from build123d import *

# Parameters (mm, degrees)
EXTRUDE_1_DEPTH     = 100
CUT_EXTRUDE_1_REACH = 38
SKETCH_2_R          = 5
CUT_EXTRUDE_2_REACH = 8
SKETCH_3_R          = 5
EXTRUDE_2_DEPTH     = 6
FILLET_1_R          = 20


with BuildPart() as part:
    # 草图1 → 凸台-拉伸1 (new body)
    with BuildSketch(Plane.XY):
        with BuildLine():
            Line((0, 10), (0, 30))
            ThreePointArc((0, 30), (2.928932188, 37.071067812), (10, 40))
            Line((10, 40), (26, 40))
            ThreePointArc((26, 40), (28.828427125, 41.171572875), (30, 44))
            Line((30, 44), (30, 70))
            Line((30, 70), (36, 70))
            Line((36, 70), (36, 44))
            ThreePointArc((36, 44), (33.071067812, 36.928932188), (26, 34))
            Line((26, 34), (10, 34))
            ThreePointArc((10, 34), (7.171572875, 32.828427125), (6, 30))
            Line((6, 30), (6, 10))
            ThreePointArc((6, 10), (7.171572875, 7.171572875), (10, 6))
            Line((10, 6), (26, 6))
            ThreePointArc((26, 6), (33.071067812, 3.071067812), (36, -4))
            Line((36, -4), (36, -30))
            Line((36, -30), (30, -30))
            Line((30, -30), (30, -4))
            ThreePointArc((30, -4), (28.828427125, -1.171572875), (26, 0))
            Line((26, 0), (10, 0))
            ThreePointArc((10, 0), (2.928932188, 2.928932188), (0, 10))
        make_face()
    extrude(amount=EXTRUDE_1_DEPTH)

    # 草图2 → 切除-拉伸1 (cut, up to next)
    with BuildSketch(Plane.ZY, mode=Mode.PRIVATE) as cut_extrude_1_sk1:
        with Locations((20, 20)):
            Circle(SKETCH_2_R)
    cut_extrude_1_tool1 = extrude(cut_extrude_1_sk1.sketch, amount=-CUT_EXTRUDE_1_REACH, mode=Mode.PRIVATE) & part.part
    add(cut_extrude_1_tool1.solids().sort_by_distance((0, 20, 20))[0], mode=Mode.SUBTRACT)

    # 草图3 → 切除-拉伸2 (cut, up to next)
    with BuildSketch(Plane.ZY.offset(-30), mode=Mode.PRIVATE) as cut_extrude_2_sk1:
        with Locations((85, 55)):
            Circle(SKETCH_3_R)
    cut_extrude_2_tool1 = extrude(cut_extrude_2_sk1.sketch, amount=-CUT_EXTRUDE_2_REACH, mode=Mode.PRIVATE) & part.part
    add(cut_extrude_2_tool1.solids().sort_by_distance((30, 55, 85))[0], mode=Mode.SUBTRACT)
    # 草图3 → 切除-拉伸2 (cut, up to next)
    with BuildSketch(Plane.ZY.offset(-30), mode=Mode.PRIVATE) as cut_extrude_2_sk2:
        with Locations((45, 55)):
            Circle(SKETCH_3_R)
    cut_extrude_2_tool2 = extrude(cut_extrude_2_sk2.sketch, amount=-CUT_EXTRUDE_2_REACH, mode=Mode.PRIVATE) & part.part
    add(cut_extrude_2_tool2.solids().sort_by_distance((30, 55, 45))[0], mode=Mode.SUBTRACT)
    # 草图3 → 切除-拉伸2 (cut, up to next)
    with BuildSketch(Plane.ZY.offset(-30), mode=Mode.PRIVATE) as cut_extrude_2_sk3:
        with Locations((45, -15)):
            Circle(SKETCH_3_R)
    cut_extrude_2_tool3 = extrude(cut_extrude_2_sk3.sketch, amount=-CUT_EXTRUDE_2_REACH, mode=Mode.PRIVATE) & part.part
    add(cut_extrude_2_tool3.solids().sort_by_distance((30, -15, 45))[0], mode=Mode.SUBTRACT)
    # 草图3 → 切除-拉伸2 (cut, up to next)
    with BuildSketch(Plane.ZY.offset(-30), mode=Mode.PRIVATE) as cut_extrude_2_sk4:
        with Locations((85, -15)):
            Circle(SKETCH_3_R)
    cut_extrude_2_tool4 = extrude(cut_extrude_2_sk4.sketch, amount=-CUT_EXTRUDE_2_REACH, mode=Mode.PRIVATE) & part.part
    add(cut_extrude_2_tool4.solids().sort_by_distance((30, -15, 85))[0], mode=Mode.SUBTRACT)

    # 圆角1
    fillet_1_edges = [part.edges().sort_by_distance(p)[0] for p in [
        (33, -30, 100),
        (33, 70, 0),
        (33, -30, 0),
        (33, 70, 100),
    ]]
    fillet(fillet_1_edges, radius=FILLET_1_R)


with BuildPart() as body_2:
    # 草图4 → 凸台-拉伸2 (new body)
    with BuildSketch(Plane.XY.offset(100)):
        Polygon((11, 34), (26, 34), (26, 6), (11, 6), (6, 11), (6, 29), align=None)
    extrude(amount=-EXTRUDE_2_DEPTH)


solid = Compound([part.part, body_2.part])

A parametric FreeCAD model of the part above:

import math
import FreeCAD as App
import Part
import Sketcher
from FreeCAD import Vector
Q = App.Units.Quantity


def edges_at(feature, points):
    """Names of the edges that pass closest to the given points."""
    edges = feature.Shape.Edges
    near = lambda p: min(range(len(edges)), key=lambda i: edges[i].distToShape(Part.Vertex(*p))[0])
    return sorted({f"Edge{near(p) + 1}" for p in points})


def add_polygon(sketch, points):
    """Adds a closed chain of lines whose ends are joined by coincident constraints."""
    first, n = sketch.GeometryCount, len(points)
    for a, b in zip(points, points[1:] + points[:1]):
        sketch.addGeometry(Part.LineSegment(App.Vector(*a, 0), App.Vector(*b, 0)), False)
    for i in range(n):
        sketch.addConstraint(Sketcher.Constraint("Coincident", first + i, 2, first + (i + 1) % n, 1))

doc = App.newDocument("Part")
body = doc.addObject("PartDesign::Body", "Body")

# Sketch on XY plane
sketch1 = body.newObject("Sketcher::SketchObject", "Sketch")
sketch1.AttachmentSupport = (doc.getObject("XY_Plane"), [""])
sketch1.MapMode = "FlatFace"
sketch1.addGeometry([
    Part.LineSegment(Vector(0, 30, 0), Vector(0, 10, 0)),  # 0
    Part.ArcOfCircle(Part.Circle(Vector(10, 10, 0), Vector(0, 0, 1), 10), math.radians(180), math.radians(270)),  # 1
    Part.LineSegment(Vector(10, 0, 0), Vector(26, 0, 0)),  # 2
    Part.ArcOfCircle(Part.Circle(Vector(26, -4, 0), Vector(0, 0, 1), 4), math.radians(0), math.radians(90)),  # 3
    Part.LineSegment(Vector(30, -4, 0), Vector(30, -30, 0)),  # 4
    Part.LineSegment(Vector(30, -30, 0), Vector(36, -30, 0)),  # 5
    Part.LineSegment(Vector(36, -30, 0), Vector(36, -4, 0)),  # 6
    Part.ArcOfCircle(Part.Circle(Vector(26, -4, 0), Vector(0, 0, 1), 10), math.radians(0), math.radians(90)),  # 7
    Part.LineSegment(Vector(26, 6, 0), Vector(10, 6, 0)),  # 8
    Part.ArcOfCircle(Part.Circle(Vector(10, 10, 0), Vector(0, 0, 1), 4), math.radians(180), math.radians(270)),  # 9
    Part.LineSegment(Vector(6, 10, 0), Vector(6, 30, 0)),  # 10
    Part.ArcOfCircle(Part.Circle(Vector(10, 30, 0), Vector(0, 0, 1), 4), math.radians(90), math.radians(180)),  # 11
    Part.LineSegment(Vector(10, 34, 0), Vector(26, 34, 0)),  # 12
    Part.ArcOfCircle(Part.Circle(Vector(26, 44, 0), Vector(0, 0, 1), 10), math.radians(-90), math.radians(0)),  # 13
    Part.LineSegment(Vector(36, 44, 0), Vector(36, 70, 0)),  # 14
    Part.LineSegment(Vector(36, 70, 0), Vector(30, 70, 0)),  # 15
    Part.LineSegment(Vector(30, 70, 0), Vector(30, 44, 0)),  # 16
    Part.ArcOfCircle(Part.Circle(Vector(26, 44, 0), Vector(0, 0, 1), 4), math.radians(-90), math.radians(0)),  # 17
    Part.LineSegment(Vector(26, 40, 0), Vector(10, 40, 0)),  # 18
    Part.ArcOfCircle(Part.Circle(Vector(10, 30, 0), Vector(0, 0, 1), 10), math.radians(90), math.radians(180)),  # 19
], False)
sketch1.addConstraint([
    Sketcher.Constraint("Tangent", 0, 2, 1, 1),
    Sketcher.Constraint("Tangent", 1, 2, 2, 1),
    Sketcher.Constraint("Tangent", 2, 2, 3, 2),
    Sketcher.Constraint("Tangent", 3, 1, 4, 1),
    Sketcher.Constraint("Coincident", 4, 2, 5, 1),
    Sketcher.Constraint("Coincident", 5, 2, 6, 1),
    Sketcher.Constraint("Tangent", 6, 2, 7, 1),
    Sketcher.Constraint("Tangent", 7, 2, 8, 1),
    Sketcher.Constraint("Tangent", 8, 2, 9, 2),
    Sketcher.Constraint("Tangent", 9, 1, 10, 1),
    Sketcher.Constraint("Tangent", 10, 2, 11, 2),
    Sketcher.Constraint("Tangent", 11, 1, 12, 1),
    Sketcher.Constraint("Tangent", 12, 2, 13, 1),
    Sketcher.Constraint("Tangent", 13, 2, 14, 1),
    Sketcher.Constraint("Coincident", 14, 2, 15, 1),
    Sketcher.Constraint("Coincident", 15, 2, 16, 1),
    Sketcher.Constraint("Tangent", 16, 2, 17, 2),
    Sketcher.Constraint("Tangent", 17, 1, 18, 1),
    Sketcher.Constraint("Tangent", 18, 2, 19, 1),
    Sketcher.Constraint("Tangent", 19, 2, 0, 1),
    Sketcher.Constraint("Vertical", 0),
    Sketcher.Constraint("Horizontal", 2),
    Sketcher.Constraint("Vertical", 4),
    Sketcher.Constraint("Horizontal", 5),
    Sketcher.Constraint("Vertical", 6),
    Sketcher.Constraint("Horizontal", 8),
    Sketcher.Constraint("Vertical", 10),
    Sketcher.Constraint("Horizontal", 12),
    Sketcher.Constraint("Vertical", 14),
    Sketcher.Constraint("Horizontal", 15),
    Sketcher.Constraint("Vertical", 16),
    Sketcher.Constraint("Horizontal", 18),
    Sketcher.Constraint("Coincident", 7, 3, 3, 3),
    Sketcher.Constraint("Coincident", 9, 3, 1, 3),
    Sketcher.Constraint("Coincident", 17, 3, 13, 3),
    Sketcher.Constraint("Coincident", 19, 3, 11, 3),
    Sketcher.Constraint("Equal", 1, 7),
    Sketcher.Constraint("Equal", 9, 11),
    Sketcher.Constraint("Equal", 7, 13),
    Sketcher.Constraint("PointOnObject", 0, 2, -2),
    Sketcher.Constraint("PointOnObject", 1, 2, -1),
    Sketcher.Constraint("Vertical", 7, 3, 13, 3),
    Sketcher.Constraint("Equal", 6, 14),
    Sketcher.Constraint("Radius", 1, Q("10 mm")),
    Sketcher.Constraint("Radius", 3, Q("4 mm")),
    Sketcher.Constraint("DistanceX", 2, 1, 2, 2, Q("16 mm")),
    Sketcher.Constraint("DistanceY", 0, 2, 0, 1, Q("20 mm")),
    Sketcher.Constraint("DistanceY", 4, 2, 4, 1, Q("26 mm")),
])
pad1 = body.newObject("PartDesign::Pad", "Pad")
pad1.Profile = sketch1
pad1.Length = 100

# Sketch on YZ plane
sketch2 = body.newObject("Sketcher::SketchObject", "Sketch001")
sketch2.AttachmentSupport = (doc.getObject("YZ_Plane"), [""])
sketch2.MapMode = "FlatFace"
sketch2.addGeometry(Part.Circle(Vector(20, 20, 0), Vector(0, 0, 1), 5), False)
sketch2.addConstraint([
    Sketcher.Constraint("Diameter", 0, Q("10 mm")),
    Sketcher.Constraint("DistanceX", -1, 1, 0, 3, Q("20 mm")),
    Sketcher.Constraint("DistanceY", -1, 1, 0, 3, Q("20 mm")),
])
pocket1 = body.newObject("PartDesign::Pocket", "Pocket")
pocket1.Profile = sketch2
pocket1.Type = "UpToFirst"
pocket1.Reversed = True

# Sketch on YZ plane
sketch3 = body.newObject("Sketcher::SketchObject", "Sketch002")
sketch3.AttachmentSupport = (doc.getObject("YZ_Plane"), [""])
sketch3.MapMode = "FlatFace"
sketch3.AttachmentOffset = App.Placement(Vector(0, 0, 30), App.Rotation())
sketch3.addGeometry(Part.Circle(Vector(55, 85, 0), Vector(0, 0, 1), 5), False)
sketch3.addConstraint([
    Sketcher.Constraint("Diameter", 0, Q("10 mm")),
    Sketcher.Constraint("DistanceX", -1, 1, 0, 3, Q("55 mm")),
    Sketcher.Constraint("DistanceY", -1, 1, 0, 3, Q("85 mm")),
])
pocket2 = body.newObject("PartDesign::Pocket", "Pocket001")
pocket2.Profile = sketch3
pocket2.Type = "UpToFirst"
pocket2.Reversed = True

# Sketch on YZ plane
sketch4 = body.newObject("Sketcher::SketchObject", "Sketch003")
sketch4.AttachmentSupport = (doc.getObject("YZ_Plane"), [""])
sketch4.MapMode = "FlatFace"
sketch4.AttachmentOffset = App.Placement(Vector(0, 0, 30), App.Rotation())
sketch4.addGeometry(Part.Circle(Vector(55, 45, 0), Vector(0, 0, 1), 5), False)
sketch4.addConstraint([
    Sketcher.Constraint("Diameter", 0, Q("10 mm")),
    Sketcher.Constraint("DistanceX", -1, 1, 0, 3, Q("55 mm")),
    Sketcher.Constraint("DistanceY", -1, 1, 0, 3, Q("45 mm")),
])
pocket3 = body.newObject("PartDesign::Pocket", "Pocket002")
pocket3.Profile = sketch4
pocket3.Type = "UpToFirst"
pocket3.Reversed = True

# Sketch on YZ plane
sketch5 = body.newObject("Sketcher::SketchObject", "Sketch004")
sketch5.AttachmentSupport = (doc.getObject("YZ_Plane"), [""])
sketch5.MapMode = "FlatFace"
sketch5.AttachmentOffset = App.Placement(Vector(0, 0, 30), App.Rotation())
sketch5.addGeometry(Part.Circle(Vector(-15, 45, 0), Vector(0, 0, 1), 5), False)
sketch5.addConstraint([
    Sketcher.Constraint("Diameter", 0, Q("10 mm")),
    Sketcher.Constraint("DistanceX", 0, 3, -1, 1, Q("15 mm")),
    Sketcher.Constraint("DistanceY", -1, 1, 0, 3, Q("45 mm")),
])
pocket4 = body.newObject("PartDesign::Pocket", "Pocket003")
pocket4.Profile = sketch5
pocket4.Type = "UpToFirst"
pocket4.Reversed = True

# Sketch on YZ plane
sketch6 = body.newObject("Sketcher::SketchObject", "Sketch005")
sketch6.AttachmentSupport = (doc.getObject("YZ_Plane"), [""])
sketch6.MapMode = "FlatFace"
sketch6.AttachmentOffset = App.Placement(Vector(0, 0, 30), App.Rotation())
sketch6.addGeometry(Part.Circle(Vector(-15, 85, 0), Vector(0, 0, 1), 5), False)
sketch6.addConstraint([
    Sketcher.Constraint("Diameter", 0, Q("10 mm")),
    Sketcher.Constraint("DistanceX", 0, 3, -1, 1, Q("15 mm")),
    Sketcher.Constraint("DistanceY", -1, 1, 0, 3, Q("85 mm")),
])
pocket5 = body.newObject("PartDesign::Pocket", "Pocket004")
pocket5.Profile = sketch6
pocket5.Type = "UpToFirst"
pocket5.Reversed = True
doc.recompute()

fillet = body.newObject("PartDesign::Fillet", "Fillet")
fillet.Base = (pocket5, edges_at(pocket5, [
    (33, -30, 100),
    (33, 70, 0),
    (33, -30, 0),
    (33, 70, 100),
]))
fillet.Radius = 20
body2 = doc.addObject("PartDesign::Body", "Body001")

# Sketch on XY plane
sketch7 = body2.newObject("Sketcher::SketchObject", "Sketch006")
sketch7.AttachmentSupport = (doc.getObject("XY_Plane001"), [""])
sketch7.MapMode = "FlatFace"
sketch7.AttachmentOffset = App.Placement(Vector(0, 0, 100), App.Rotation())
add_polygon(sketch7, [(26, 34), (11, 34), (6, 29), (6, 11), (11, 6), (26, 6)])  # lines 0-5
sketch7.addConstraint([
    Sketcher.Constraint("Horizontal", 0),
    Sketcher.Constraint("Vertical", 2),
    Sketcher.Constraint("Horizontal", 4),
    Sketcher.Constraint("Vertical", 5),
    Sketcher.Constraint("Perpendicular", 1, 3),
    Sketcher.Constraint("Vertical", 0, 2, 3, 2),
    Sketcher.Constraint("Equal", 1, 3),
    Sketcher.Constraint("DistanceX", 0, 2, 0, 1, Q("15 mm")),
    Sketcher.Constraint("DistanceY", 2, 2, 2, 1, Q("18 mm")),
    Sketcher.Constraint("DistanceY", 5, 1, 5, 2, Q("28 mm")),
    Sketcher.Constraint("DistanceX", -1, 1, 0, 2, Q("11 mm")),
    Sketcher.Constraint("DistanceY", -1, 1, 0, 2, Q("34 mm")),
])
pad2 = body2.newObject("PartDesign::Pad", "Pad001")
pad2.Profile = sketch7
pad2.Length = 6
pad2.Reversed = True

doc.recompute()
